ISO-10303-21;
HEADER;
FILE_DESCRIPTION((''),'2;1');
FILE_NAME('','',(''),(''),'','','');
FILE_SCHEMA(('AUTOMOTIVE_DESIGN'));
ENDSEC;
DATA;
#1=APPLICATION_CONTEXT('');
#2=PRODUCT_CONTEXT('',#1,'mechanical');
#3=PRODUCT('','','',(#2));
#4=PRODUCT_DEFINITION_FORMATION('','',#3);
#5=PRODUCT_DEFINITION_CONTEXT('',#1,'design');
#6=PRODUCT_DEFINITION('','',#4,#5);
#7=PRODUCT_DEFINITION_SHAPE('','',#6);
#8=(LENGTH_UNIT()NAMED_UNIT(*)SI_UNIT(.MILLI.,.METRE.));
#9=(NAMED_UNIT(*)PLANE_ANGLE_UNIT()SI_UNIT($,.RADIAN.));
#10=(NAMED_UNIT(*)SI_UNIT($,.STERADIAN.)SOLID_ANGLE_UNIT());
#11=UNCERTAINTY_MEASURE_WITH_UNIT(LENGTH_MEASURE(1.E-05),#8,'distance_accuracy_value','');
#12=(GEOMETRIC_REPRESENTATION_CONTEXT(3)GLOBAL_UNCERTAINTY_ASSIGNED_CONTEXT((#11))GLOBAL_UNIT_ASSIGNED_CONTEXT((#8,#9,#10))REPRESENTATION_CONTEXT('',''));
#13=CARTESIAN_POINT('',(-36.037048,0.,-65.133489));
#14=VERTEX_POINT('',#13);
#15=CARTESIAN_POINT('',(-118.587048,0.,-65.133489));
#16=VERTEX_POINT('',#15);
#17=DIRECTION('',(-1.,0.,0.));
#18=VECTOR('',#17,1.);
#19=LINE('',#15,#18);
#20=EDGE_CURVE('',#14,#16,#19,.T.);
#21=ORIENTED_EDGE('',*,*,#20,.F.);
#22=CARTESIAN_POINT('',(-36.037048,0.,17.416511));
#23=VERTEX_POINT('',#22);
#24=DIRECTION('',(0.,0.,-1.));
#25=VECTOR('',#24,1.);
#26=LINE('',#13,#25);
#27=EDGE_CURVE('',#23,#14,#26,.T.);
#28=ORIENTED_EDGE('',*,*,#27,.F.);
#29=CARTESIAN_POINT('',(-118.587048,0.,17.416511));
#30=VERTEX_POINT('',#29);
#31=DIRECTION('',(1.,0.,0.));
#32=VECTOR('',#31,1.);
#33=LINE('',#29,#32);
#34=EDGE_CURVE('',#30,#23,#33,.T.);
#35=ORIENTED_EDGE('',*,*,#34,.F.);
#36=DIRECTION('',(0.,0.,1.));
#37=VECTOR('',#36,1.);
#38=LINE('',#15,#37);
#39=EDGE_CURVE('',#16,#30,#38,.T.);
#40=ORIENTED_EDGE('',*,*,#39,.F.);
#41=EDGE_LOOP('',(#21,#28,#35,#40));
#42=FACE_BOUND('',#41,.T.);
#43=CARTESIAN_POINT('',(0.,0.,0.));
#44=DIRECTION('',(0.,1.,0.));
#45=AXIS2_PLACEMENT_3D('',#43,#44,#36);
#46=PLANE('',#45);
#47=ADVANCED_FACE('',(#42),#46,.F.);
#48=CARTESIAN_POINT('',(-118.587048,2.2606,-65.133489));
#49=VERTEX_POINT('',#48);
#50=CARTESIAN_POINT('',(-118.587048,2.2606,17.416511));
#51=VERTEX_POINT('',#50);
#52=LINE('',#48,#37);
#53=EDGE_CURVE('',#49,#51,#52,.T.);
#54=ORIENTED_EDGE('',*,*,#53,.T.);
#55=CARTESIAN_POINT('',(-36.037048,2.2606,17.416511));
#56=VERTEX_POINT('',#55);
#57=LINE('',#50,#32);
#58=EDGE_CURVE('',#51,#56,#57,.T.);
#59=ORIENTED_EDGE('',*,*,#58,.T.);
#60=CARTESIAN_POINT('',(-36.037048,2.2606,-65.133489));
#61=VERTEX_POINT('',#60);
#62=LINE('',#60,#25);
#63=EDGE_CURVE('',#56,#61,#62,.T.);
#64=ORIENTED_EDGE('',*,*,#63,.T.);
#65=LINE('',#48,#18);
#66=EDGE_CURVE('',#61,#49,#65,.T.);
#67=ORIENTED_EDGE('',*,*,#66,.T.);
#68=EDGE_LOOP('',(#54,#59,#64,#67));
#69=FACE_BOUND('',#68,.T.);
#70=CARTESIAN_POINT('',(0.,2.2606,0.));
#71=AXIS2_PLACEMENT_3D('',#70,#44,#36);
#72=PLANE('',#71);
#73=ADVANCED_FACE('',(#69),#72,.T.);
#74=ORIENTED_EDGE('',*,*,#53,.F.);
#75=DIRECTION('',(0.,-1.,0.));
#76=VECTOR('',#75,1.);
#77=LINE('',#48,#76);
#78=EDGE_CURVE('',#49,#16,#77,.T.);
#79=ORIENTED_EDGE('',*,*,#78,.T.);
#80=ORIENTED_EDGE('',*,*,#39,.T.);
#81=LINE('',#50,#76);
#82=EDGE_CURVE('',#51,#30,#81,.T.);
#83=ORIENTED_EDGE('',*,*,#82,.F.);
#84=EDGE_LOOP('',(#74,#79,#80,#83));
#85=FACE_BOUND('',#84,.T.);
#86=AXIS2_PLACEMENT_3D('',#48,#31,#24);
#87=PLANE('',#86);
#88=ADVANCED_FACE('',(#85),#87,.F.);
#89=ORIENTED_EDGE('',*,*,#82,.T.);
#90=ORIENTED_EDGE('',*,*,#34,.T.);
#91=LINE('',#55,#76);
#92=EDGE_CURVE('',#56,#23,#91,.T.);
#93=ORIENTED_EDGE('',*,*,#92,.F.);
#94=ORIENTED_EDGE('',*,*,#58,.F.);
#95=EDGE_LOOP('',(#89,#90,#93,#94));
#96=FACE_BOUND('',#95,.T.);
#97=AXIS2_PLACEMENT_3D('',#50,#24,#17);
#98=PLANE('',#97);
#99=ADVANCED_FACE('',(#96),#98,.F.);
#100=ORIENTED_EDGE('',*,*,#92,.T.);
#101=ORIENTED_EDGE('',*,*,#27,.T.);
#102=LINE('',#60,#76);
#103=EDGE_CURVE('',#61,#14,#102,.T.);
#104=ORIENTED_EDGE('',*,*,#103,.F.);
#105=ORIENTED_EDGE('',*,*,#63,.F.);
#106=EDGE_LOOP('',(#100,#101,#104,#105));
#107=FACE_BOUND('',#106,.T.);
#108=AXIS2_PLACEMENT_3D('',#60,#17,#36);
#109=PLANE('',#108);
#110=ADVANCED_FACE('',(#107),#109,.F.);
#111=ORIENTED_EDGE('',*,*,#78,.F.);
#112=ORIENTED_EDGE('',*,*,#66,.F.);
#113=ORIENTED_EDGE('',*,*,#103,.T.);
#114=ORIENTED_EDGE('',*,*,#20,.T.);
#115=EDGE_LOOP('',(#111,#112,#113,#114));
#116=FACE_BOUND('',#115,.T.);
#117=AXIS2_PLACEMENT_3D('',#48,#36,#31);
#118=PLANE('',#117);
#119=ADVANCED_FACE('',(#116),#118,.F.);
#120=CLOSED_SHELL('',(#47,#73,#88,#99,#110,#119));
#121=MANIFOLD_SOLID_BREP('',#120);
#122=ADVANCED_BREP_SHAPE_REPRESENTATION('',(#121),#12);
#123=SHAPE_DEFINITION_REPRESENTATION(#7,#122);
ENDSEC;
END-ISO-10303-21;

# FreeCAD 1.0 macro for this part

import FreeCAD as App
import Part
import Sketcher
from FreeCAD import Vector
Q = App.Units.Quantity


def add_polygon(sketch, points):
    """Adds a closed chain of lines whose ends are joined by coincident constraints."""
    first, n = sketch.GeometryCount, len(points)
    for a, b in zip(points, points[1:] + points[:1]):
        sketch.addGeometry(Part.LineSegment(App.Vector(*a, 0), App.Vector(*b, 0)), False)
    for i in range(n):
        sketch.addConstraint(Sketcher.Constraint("Coincident", first + i, 2, first + (i + 1) % n, 1))

doc = App.newDocument("Part")
params = doc.addObject("Spreadsheet::Sheet", "Params")
for row, (alias, value) in enumerate([
    ("sketch1_width", "3.25 in"),
    ("pad1_length", "0.089 in"),
], start=1):
    params.set(f"A{row}", alias)
    params.set(f"B{row}", "=" + value)
    params.setAlias(f"B{row}", alias)

body = doc.addObject("PartDesign::Body", "Body")

# Sketch on XZ plane
sketch1 = doc.addObject("Sketcher::SketchObject", "Sketch")
body.addObject(sketch1)
sketch1.AttachmentSupport = (doc.XZ_Plane, [""])
sketch1.MapMode = "FlatFace"
add_polygon(sketch1, [(-119, -65), (-119, 17), (-36, 17), (-36, -65)])  # lines 0-3
sketch1.addConstraint(Sketcher.Constraint("Vertical", 0))
sketch1.addConstraint(Sketcher.Constraint("Horizontal", 1))
sketch1.addConstraint(Sketcher.Constraint("Vertical", 2))
sketch1.addConstraint(Sketcher.Constraint("Horizontal", 3))
sketch1.addConstraint(Sketcher.Constraint("Equal", 3, 0))
sketch1.addConstraint(Sketcher.Constraint("DistanceX", 1, 1, 1, 2, Q("3.25 in")))
sketch1.addConstraint(Sketcher.Constraint("DistanceX", 0, 2, -1, 1, 118.587048))
sketch1.addConstraint(Sketcher.Constraint("DistanceY", -1, 1, 0, 2, 17.416511))
sketch1.setExpression("Constraints[9]", "Params.sketch1_width")
pad1 = doc.addObject("PartDesign::Pad", "Pad")
body.addObject(pad1)
pad1.Profile = sketch1
pad1.setExpression("Length", "Params.pad1_length")
pad1.Reversed = True

doc.recompute()
